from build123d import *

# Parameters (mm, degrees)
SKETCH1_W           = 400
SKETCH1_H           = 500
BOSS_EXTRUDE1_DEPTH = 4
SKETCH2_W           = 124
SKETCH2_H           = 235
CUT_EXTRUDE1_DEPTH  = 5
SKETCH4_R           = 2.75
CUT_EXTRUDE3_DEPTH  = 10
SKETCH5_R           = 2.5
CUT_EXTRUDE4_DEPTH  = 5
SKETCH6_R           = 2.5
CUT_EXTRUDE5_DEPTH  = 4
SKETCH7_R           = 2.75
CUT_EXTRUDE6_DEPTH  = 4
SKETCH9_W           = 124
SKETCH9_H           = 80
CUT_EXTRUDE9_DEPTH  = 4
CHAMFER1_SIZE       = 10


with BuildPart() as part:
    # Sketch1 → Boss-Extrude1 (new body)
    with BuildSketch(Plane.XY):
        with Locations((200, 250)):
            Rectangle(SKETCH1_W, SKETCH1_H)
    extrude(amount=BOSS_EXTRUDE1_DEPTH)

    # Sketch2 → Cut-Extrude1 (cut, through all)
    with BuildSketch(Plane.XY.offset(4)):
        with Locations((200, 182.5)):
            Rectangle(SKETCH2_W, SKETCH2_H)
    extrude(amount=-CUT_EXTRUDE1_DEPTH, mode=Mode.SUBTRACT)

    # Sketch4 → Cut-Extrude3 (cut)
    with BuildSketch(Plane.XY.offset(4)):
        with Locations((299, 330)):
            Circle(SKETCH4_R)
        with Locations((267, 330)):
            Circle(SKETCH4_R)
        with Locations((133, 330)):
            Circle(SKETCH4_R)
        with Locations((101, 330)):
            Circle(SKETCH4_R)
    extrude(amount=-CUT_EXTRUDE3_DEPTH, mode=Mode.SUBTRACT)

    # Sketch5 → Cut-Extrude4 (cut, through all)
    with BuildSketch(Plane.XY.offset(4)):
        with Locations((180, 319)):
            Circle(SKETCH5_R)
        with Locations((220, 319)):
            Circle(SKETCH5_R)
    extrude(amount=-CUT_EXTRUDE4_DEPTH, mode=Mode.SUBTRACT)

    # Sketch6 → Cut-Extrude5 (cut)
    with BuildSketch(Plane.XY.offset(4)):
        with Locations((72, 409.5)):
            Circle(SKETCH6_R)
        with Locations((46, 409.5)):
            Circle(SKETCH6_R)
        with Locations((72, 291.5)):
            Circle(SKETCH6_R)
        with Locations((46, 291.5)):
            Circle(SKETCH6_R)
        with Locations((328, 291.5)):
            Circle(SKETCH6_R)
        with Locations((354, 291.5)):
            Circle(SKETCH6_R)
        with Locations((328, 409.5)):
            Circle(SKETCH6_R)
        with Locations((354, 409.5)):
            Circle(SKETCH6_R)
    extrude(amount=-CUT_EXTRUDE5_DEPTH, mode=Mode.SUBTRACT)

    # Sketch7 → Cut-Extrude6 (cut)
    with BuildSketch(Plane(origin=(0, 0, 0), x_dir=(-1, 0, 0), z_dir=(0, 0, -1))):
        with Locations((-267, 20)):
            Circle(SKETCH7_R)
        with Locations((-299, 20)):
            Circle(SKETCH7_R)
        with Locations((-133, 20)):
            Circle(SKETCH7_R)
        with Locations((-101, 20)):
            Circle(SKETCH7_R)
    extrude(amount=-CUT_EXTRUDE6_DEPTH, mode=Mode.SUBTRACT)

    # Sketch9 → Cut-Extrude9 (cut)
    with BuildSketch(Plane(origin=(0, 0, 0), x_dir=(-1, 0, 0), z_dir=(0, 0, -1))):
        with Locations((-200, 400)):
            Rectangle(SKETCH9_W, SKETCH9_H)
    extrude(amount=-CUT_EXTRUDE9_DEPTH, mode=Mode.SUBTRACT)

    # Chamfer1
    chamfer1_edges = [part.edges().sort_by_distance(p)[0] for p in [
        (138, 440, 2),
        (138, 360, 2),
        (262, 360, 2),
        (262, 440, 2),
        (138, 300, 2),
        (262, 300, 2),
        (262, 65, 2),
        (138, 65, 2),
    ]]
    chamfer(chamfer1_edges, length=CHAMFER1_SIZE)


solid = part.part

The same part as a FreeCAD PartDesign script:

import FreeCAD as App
import Part
import Sketcher

V = App.Vector


def edges_at(feature, points):
    """Names of the edges that pass closest to the given points."""
    edges = feature.Shape.Edges
    near = lambda p: min(range(len(edges)), key=lambda i: edges[i].distToShape(Part.Vertex(*p))[0])
    return sorted({f"Edge{near(p) + 1}" for p in points})

doc = App.newDocument("Part")
body = doc.addObject("PartDesign::Body", "Body")

sketch1 = body.newObject("Sketcher::SketchObject", "Sketch")
sketch1.AttachmentSupport = (doc.getObject("XY_Plane"), [""])
sketch1.MapMode = "FlatFace"
sketch1.addGeometry(Part.LineSegment(V(0, 500, 0), V(0, 0, 0)), False)
sketch1.addGeometry(Part.LineSegment(V(0, 0, 0), V(400, 0, 0)), False)
sketch1.addGeometry(Part.LineSegment(V(400, 0, 0), V(400, 500, 0)), False)
sketch1.addGeometry(Part.LineSegment(V(400, 500, 0), V(0, 500, 0)), False)
sketch1.addConstraint(Sketcher.Constraint("Coincident", 0, 2, 1, 1))
sketch1.addConstraint(Sketcher.Constraint("Coincident", 1, 2, 2, 1))
sketch1.addConstraint(Sketcher.Constraint("Coincident", 2, 2, 3, 1))
sketch1.addConstraint(Sketcher.Constraint("Coincident", 3, 2, 0, 1))
sketch1.addConstraint(Sketcher.Constraint("Vertical", 0))
sketch1.addConstraint(Sketcher.Constraint("Horizontal", 1))
sketch1.addConstraint(Sketcher.Constraint("Vertical", 2))
sketch1.addConstraint(Sketcher.Constraint("Horizontal", 3))
sketch1.addConstraint(Sketcher.Constraint("Coincident", 0, 2, -1, 1))
sketch1.addConstraint(Sketcher.Constraint("DistanceX", 1, 1, 1, 2, 400.0))
sketch1.addConstraint(Sketcher.Constraint("DistanceY", 0, 2, 0, 1, 500.0))
pad1 = body.newObject("PartDesign::Pad", "Pad")
pad1.Profile = sketch1
pad1.Length = 4

sketch2 = body.newObject("Sketcher::SketchObject", "Sketch001")
sketch2.AttachmentSupport = (doc.getObject("XY_Plane"), [""])
sketch2.MapMode = "FlatFace"
sketch2.AttachmentOffset = App.Placement(V(0, 0, 4), App.Rotation())
sketch2.addGeometry(Part.LineSegment(V(138, 300, 0), V(138, 65, 0)), False)
sketch2.addGeometry(Part.LineSegment(V(138, 65, 0), V(262, 65, 0)), False)
sketch2.addGeometry(Part.LineSegment(V(262, 65, 0), V(262, 300, 0)), False)
sketch2.addGeometry(Part.LineSegment(V(262, 300, 0), V(138, 300, 0)), False)
sketch2.addConstraint(Sketcher.Constraint("Coincident", 0, 2, 1, 1))
sketch2.addConstraint(Sketcher.Constraint("Coincident", 1, 2, 2, 1))
sketch2.addConstraint(Sketcher.Constraint("Coincident", 2, 2, 3, 1))
sketch2.addConstraint(Sketcher.Constraint("Coincident", 3, 2, 0, 1))
sketch2.addConstraint(Sketcher.Constraint("Vertical", 0))
sketch2.addConstraint(Sketcher.Constraint("Horizontal", 1))
sketch2.addConstraint(Sketcher.Constraint("Vertical", 2))
sketch2.addConstraint(Sketcher.Constraint("Horizontal", 3))
sketch2.addConstraint(Sketcher.Constraint("DistanceX", 1, 1, 1, 2, 124.0))
sketch2.addConstraint(Sketcher.Constraint("DistanceY", 0, 2, 0, 1, 235.0))
sketch2.addConstraint(Sketcher.Constraint("DistanceX", -1, 1, 0, 2, 138.0))
sketch2.addConstraint(Sketcher.Constraint("DistanceY", -1, 1, 0, 2, 65.0))
pocket1 = body.newObject("PartDesign::Pocket", "Pocket")
pocket1.Profile = sketch2
pocket1.Type = "ThroughAll"

sketch3 = body.newObject("Sketcher::SketchObject", "Sketch002")
sketch3.AttachmentSupport = (doc.getObject("XY_Plane"), [""])
sketch3.MapMode = "FlatFace"
sketch3.AttachmentOffset = App.Placement(V(0, 0, 4), App.Rotation())
sketch3.addGeometry(Part.Circle(V(299, 330, 0), V(0, 0, 1), 2.8), False)
sketch3.addGeometry(Part.Circle(V(267, 330, 0), V(0, 0, 1), 2.8), False)
sketch3.addGeometry(Part.Circle(V(133, 330, 0), V(0, 0, 1), 2.8), False)
sketch3.addGeometry(Part.Circle(V(101, 330, 0), V(0, 0, 1), 2.8), False)
sketch3.addConstraint(Sketcher.Constraint("Equal", 0, 1))
sketch3.addConstraint(Sketcher.Constraint("Equal", 1, 2))
sketch3.addConstraint(Sketcher.Constraint("Equal", 2, 3))
sketch3.addConstraint(Sketcher.Constraint("Horizontal", 0, 3, 1, 3))
sketch3.addConstraint(Sketcher.Constraint("Horizontal", 1, 3, 2, 3))
sketch3.addConstraint(Sketcher.Constraint("Horizontal", 2, 3, 3, 3))
sketch3.addConstraint(Sketcher.Constraint("Diameter", 0, 5.5))
sketch3.addConstraint(Sketcher.Constraint("DistanceX", -1, 1, 0, 3, 299.0))
sketch3.addConstraint(Sketcher.Constraint("DistanceY", -1, 1, 0, 3, 330.0))
sketch3.addConstraint(Sketcher.Constraint("DistanceX", -1, 1, 1, 3, 267.0))
sketch3.addConstraint(Sketcher.Constraint("DistanceX", -1, 1, 2, 3, 133.0))
sketch3.addConstraint(Sketcher.Constraint("DistanceX", -1, 1, 3, 3, 101.0))
pocket2 = body.newObject("PartDesign::Pocket", "Pocket001")
pocket2.Profile = sketch3
pocket2.Length = 10

sketch4 = body.newObject("Sketcher::SketchObject", "Sketch003")
sketch4.AttachmentSupport = (doc.getObject("XY_Plane"), [""])
sketch4.MapMode = "FlatFace"
sketch4.AttachmentOffset = App.Placement(V(0, 0, 4), App.Rotation())
sketch4.addGeometry(Part.Circle(V(180, 319, 0), V(0, 0, 1), 2.5), False)
sketch4.addGeometry(Part.Circle(V(220, 319, 0), V(0, 0, 1), 2.5), False)
sketch4.addConstraint(Sketcher.Constraint("Equal", 0, 1))
sketch4.addConstraint(Sketcher.Constraint("Horizontal", 0, 3, 1, 3))
sketch4.addConstraint(Sketcher.Constraint("Diameter", 0, 5.0))
sketch4.addConstraint(Sketcher.Constraint("DistanceX", -1, 1, 0, 3, 180.0))
sketch4.addConstraint(Sketcher.Constraint("DistanceY", -1, 1, 0, 3, 319.0))
sketch4.addConstraint(Sketcher.Constraint("DistanceX", -1, 1, 1, 3, 220.0))
pocket3 = body.newObject("PartDesign::Pocket", "Pocket002")
pocket3.Profile = sketch4
pocket3.Type = "ThroughAll"

sketch5 = body.newObject("Sketcher::SketchObject", "Sketch004")
sketch5.AttachmentSupport = (doc.getObject("XY_Plane"), [""])
sketch5.MapMode = "FlatFace"
sketch5.AttachmentOffset = App.Placement(V(0, 0, 4), App.Rotation())
sketch5.addGeometry(Part.Circle(V(72, 409.5, 0), V(0, 0, 1), 2.5), False)
sketch5.addGeometry(Part.Circle(V(46, 409.5, 0), V(0, 0, 1), 2.5), False)
sketch5.addGeometry(Part.Circle(V(72, 291.5, 0), V(0, 0, 1), 2.5), False)
sketch5.addGeometry(Part.Circle(V(46, 291.5, 0), V(0, 0, 1), 2.5), False)
sketch5.addGeometry(Part.Circle(V(328, 291.5, 0), V(0, 0, 1), 2.5), False)
sketch5.addGeometry(Part.Circle(V(354, 291.5, 0), V(0, 0, 1), 2.5), False)
sketch5.addGeometry(Part.Circle(V(328, 409.5, 0), V(0, 0, 1), 2.5), False)
sketch5.addGeometry(Part.Circle(V(354, 409.5, 0), V(0, 0, 1), 2.5), False)
sketch5.addConstraint(Sketcher.Constraint("Equal", 0, 1))
sketch5.addConstraint(Sketcher.Constraint("Equal", 1, 2))
sketch5.addConstraint(Sketcher.Constraint("Equal", 2, 3))
sketch5.addConstraint(Sketcher.Constraint("Equal", 3, 4))
sketch5.addConstraint(Sketcher.Constraint("Equal", 4, 5))
sketch5.addConstraint(Sketcher.Constraint("Equal", 5, 6))
sketch5.addConstraint(Sketcher.Constraint("Equal", 6, 7))
sketch5.addConstraint(Sketcher.Constraint("Horizontal", 0, 3, 1, 3))
sketch5.addConstraint(Sketcher.Constraint("Horizontal", 2, 3, 3, 3))
sketch5.addConstraint(Sketcher.Constraint("Horizontal", 3, 3, 4, 3))
sketch5.addConstraint(Sketcher.Constraint("Horizontal", 4, 3, 5, 3))
sketch5.addConstraint(Sketcher.Constraint("Horizontal", 1, 3, 6, 3))
sketch5.addConstraint(Sketcher.Constraint("Horizontal", 6, 3, 7, 3))
sketch5.addConstraint(Sketcher.Constraint("Vertical", 0, 3, 2, 3))
sketch5.addConstraint(Sketcher.Constraint("Vertical", 1, 3, 3, 3))
sketch5.addConstraint(Sketcher.Constraint("Vertical", 4, 3, 6, 3))
sketch5.addConstraint(Sketcher.Constraint("Vertical", 5, 3, 7, 3))
sketch5.addConstraint(Sketcher.Constraint("Diameter", 0, 5.0))
sketch5.addConstraint(Sketcher.Constraint("DistanceX", -1, 1, 0, 3, 72.0))
sketch5.addConstraint(Sketcher.Constraint("DistanceX", -1, 1, 1, 3, 46.0))
sketch5.addConstraint(Sketcher.Constraint("DistanceX", -1, 1, 4, 3, 328.0))
sketch5.addConstraint(Sketcher.Constraint("DistanceX", -1, 1, 5, 3, 354.0))
sketch5.addConstraint(Sketcher.Constraint("DistanceY", 2, 3, 0, 3, 118.0))
sketch5.addConstraint(Sketcher.Constraint("DistanceY", -1, 1, 0, 3, 409.5))
pocket4 = body.newObject("PartDesign::Pocket", "Pocket003")
pocket4.Profile = sketch5
pocket4.Length = 4

sketch6 = body.newObject("Sketcher::SketchObject", "Sketch005")
sketch6.AttachmentSupport = (doc.getObject("XY_Plane"), [""])
sketch6.MapMode = "FlatFace"
sketch6.addGeometry(Part.Circle(V(267, 20, 0), V(0, 0, 1), 2.8), False)
sketch6.addGeometry(Part.Circle(V(299, 20, 0), V(0, 0, 1), 2.8), False)
sketch6.addGeometry(Part.Circle(V(133, 20, 0), V(0, 0, 1), 2.8), False)
sketch6.addGeometry(Part.Circle(V(101, 20, 0), V(0, 0, 1), 2.8), False)
sketch6.addConstraint(Sketcher.Constraint("Equal", 0, 1))
sketch6.addConstraint(Sketcher.Constraint("Equal", 1, 2))
sketch6.addConstraint(Sketcher.Constraint("Equal", 2, 3))
sketch6.addConstraint(Sketcher.Constraint("Horizontal", 0, 3, 1, 3))
sketch6.addConstraint(Sketcher.Constraint("Horizontal", 1, 3, 2, 3))
sketch6.addConstraint(Sketcher.Constraint("Horizontal", 2, 3, 3, 3))
sketch6.addConstraint(Sketcher.Constraint("Diameter", 0, 5.5))
sketch6.addConstraint(Sketcher.Constraint("DistanceX", -1, 1, 0, 3, 267.0))
sketch6.addConstraint(Sketcher.Constraint("DistanceY", -1, 1, 0, 3, 20.0))
sketch6.addConstraint(Sketcher.Constraint("DistanceX", -1, 1, 1, 3, 299.0))
sketch6.addConstraint(Sketcher.Constraint("DistanceX", -1, 1, 2, 3, 133.0))
sketch6.addConstraint(Sketcher.Constraint("DistanceX", -1, 1, 3, 3, 101.0))
pocket5 = body.newObject("PartDesign::Pocket", "Pocket004")
pocket5.Profile = sketch6
pocket5.Length = 4
pocket5.Reversed = True

sketch7 = body.newObject("Sketcher::SketchObject", "Sketch006")
sketch7.AttachmentSupport = (doc.getObject("XY_Plane"), [""])
sketch7.MapMode = "FlatFace"
sketch7.addGeometry(Part.LineSegment(V(262, 440, 0), V(262, 360, 0)), False)
sketch7.addGeometry(Part.LineSegment(V(262, 360, 0), V(138, 360, 0)), False)
sketch7.addGeometry(Part.LineSegment(V(138, 360, 0), V(138, 440, 0)), False)
sketch7.addGeometry(Part.LineSegment(V(138, 440, 0), V(262, 440, 0)), False)
sketch7.addConstraint(Sketcher.Constraint("Coincident", 0, 2, 1, 1))
sketch7.addConstraint(Sketcher.Constraint("Coincident", 1, 2, 2, 1))
sketch7.addConstraint(Sketcher.Constraint("Coincident", 2, 2, 3, 1))
sketch7.addConstraint(Sketcher.Constraint("Coincident", 3, 2, 0, 1))
sketch7.addConstraint(Sketcher.Constraint("Vertical", 0))
sketch7.addConstraint(Sketcher.Constraint("Horizontal", 1))
sketch7.addConstraint(Sketcher.Constraint("Vertical", 2))
sketch7.addConstraint(Sketcher.Constraint("Horizontal", 3))
sketch7.addConstraint(Sketcher.Constraint("DistanceX", 1, 2, 1, 1, 124.0))
sketch7.addConstraint(Sketcher.Constraint("DistanceY", 0, 2, 0, 1, 80.0))
sketch7.addConstraint(Sketcher.Constraint("DistanceX", -1, 1, 0, 2, 262.0))
sketch7.addConstraint(Sketcher.Constraint("DistanceY", -1, 1, 0, 2, 360.0))
pocket6 = body.newObject("PartDesign::Pocket", "Pocket005")
pocket6.Profile = sketch7
pocket6.Length = 4
pocket6.Reversed = True
doc.recompute()

chamfer = body.newObject("PartDesign::Chamfer", "Chamfer")
chamfer.Base = (pocket6, edges_at(pocket6, [
    (138, 440, 2),
    (138, 360, 2),
    (262, 360, 2),
    (262, 440, 2),
    (138, 300, 2),
    (262, 300, 2),
    (262, 65, 2),
    (138, 65, 2),
]))
chamfer.Size = 10

doc.recompute()
